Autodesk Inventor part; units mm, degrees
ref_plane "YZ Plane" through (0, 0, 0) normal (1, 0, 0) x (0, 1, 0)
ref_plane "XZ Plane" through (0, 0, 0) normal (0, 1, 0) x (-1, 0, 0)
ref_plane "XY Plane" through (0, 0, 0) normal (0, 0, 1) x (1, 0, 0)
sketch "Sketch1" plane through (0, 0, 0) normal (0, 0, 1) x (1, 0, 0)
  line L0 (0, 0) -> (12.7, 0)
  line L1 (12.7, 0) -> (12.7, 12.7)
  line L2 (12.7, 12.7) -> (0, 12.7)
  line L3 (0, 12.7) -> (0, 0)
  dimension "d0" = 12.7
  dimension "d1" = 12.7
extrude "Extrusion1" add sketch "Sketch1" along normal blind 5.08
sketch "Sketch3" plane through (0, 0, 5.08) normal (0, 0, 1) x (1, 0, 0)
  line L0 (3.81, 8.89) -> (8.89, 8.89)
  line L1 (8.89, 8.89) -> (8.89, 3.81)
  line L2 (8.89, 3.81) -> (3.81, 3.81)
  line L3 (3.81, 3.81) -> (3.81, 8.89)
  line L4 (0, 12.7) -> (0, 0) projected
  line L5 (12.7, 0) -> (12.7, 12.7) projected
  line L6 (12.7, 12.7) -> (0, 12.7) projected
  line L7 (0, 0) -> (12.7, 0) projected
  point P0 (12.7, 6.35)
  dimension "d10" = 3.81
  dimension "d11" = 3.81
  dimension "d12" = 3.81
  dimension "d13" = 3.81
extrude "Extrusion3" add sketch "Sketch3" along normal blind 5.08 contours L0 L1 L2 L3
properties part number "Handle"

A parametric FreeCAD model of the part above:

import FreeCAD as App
import Part
import Sketcher
from FreeCAD import Vector
Q = App.Units.Quantity


def add_polygon(sketch, points):
    """Adds a closed chain of lines whose ends are joined by coincident constraints."""
    first, n = sketch.GeometryCount, len(points)
    for a, b in zip(points, points[1:] + points[:1]):
        sketch.addGeometry(Part.LineSegment(App.Vector(*a, 0), App.Vector(*b, 0)), False)
    for i in range(n):
        sketch.addConstraint(Sketcher.Constraint("Coincident", first + i, 2, first + (i + 1) % n, 1))

doc = App.newDocument("Part")
body = doc.addObject("PartDesign::Body", "Body")

sketch1 = doc.addObject("Sketcher::SketchObject", "Sketch")
body.addObject(sketch1)
sketch1.AttachmentSupport = (doc.XY_Plane, [""])
sketch1.MapMode = "FlatFace"
add_polygon(sketch1, [(0, 12.7), (0, 0), (12.7, 0), (12.7, 12.7)])
sketch1.addConstraint([
    Sketcher.Constraint("Vertical", 0),
    Sketcher.Constraint("Horizontal", 1),
    Sketcher.Constraint("Vertical", 2),
    Sketcher.Constraint("Horizontal", 3),
    Sketcher.Constraint("Coincident", 0, 2, -1, 1),
    Sketcher.Constraint("Equal", 3, 0),
    Sketcher.Constraint("DistanceX", 1, 1, 1, 2, Q("0.5 in")),
])
pad1 = doc.addObject("PartDesign::Pad", "Pad")
body.addObject(pad1)
pad1.Profile = sketch1
pad1.Length = Q("0.2 in")

sketch2 = doc.addObject("Sketcher::SketchObject", "Sketch001")
body.addObject(sketch2)
sketch2.AttachmentSupport = (doc.XY_Plane, [""])
sketch2.MapMode = "FlatFace"
sketch2.AttachmentOffset = App.Placement(Vector(0, 0, 0.2 * 25.4), App.Rotation())
add_polygon(sketch2, [(8.89, 8.89), (3.81, 8.89), (3.81, 3.81), (8.89, 3.81)])
sketch2.addConstraint([
    Sketcher.Constraint("Horizontal", 0),
    Sketcher.Constraint("Vertical", 1),
    Sketcher.Constraint("Horizontal", 2),
    Sketcher.Constraint("Vertical", 3),
    Sketcher.Constraint("Equal", 2, 1),
    Sketcher.Constraint("DistanceX", -1, 1, 0, 2, Q("0.15 in")),
    Sketcher.Constraint("DistanceY", -1, 1, 1, 2, Q("0.15 in")),
    Sketcher.Constraint("DistanceX", 0, 2, 0, 1, Q("0.2 in")),
])
pad2 = doc.addObject("PartDesign::Pad", "Pad001")
body.addObject(pad2)
pad2.Profile = sketch2
pad2.Length = Q("0.2 in")

doc.recompute()
